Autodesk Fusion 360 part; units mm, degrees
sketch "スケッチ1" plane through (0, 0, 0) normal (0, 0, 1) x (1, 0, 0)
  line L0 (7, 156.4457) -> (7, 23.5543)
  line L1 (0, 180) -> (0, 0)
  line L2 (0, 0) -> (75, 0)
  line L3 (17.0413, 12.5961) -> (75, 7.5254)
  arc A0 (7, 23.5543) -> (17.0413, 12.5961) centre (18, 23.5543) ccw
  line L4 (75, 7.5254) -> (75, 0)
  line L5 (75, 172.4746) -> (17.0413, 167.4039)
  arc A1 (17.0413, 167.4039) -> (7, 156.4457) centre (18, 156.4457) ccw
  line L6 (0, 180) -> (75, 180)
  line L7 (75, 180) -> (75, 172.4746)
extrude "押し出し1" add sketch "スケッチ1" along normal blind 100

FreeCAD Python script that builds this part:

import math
import FreeCAD as App
import Part
import Sketcher
Q = App.Units.Quantity

doc = App.newDocument("Part")
body = doc.addObject("PartDesign::Body", "Body")

sketch1 = body.newObject("Sketcher::SketchObject", "Sketch")
sketch1.AttachmentSupport = (doc.getObject("XY_Plane"), [""])
sketch1.MapMode = "FlatFace"
sketch1.addGeometry([
    Part.LineSegment(App.Vector(7, 24, 0), App.Vector(7, 156, 0)),
    Part.ArcOfCircle(Part.Circle(App.Vector(18, 156, 0), App.Vector(0, 0, 1), 11), math.radians(95), math.radians(180)),
    Part.LineSegment(App.Vector(17, 167, 0), App.Vector(75, 172, 0)),
    Part.LineSegment(App.Vector(75, 172, 0), App.Vector(75, 180, 0)),
    Part.LineSegment(App.Vector(75, 180, 0), App.Vector(0, 180, 0)),
    Part.LineSegment(App.Vector(0, 180, 0), App.Vector(0, 0, 0)),
    Part.LineSegment(App.Vector(0, 0, 0), App.Vector(75, 0, 0)),
    Part.LineSegment(App.Vector(75, 0, 0), App.Vector(75, 8, 0)),
    Part.LineSegment(App.Vector(75, 8, 0), App.Vector(17, 13, 0)),
    Part.ArcOfCircle(Part.Circle(App.Vector(18, 24, 0), App.Vector(0, 0, 1), 11), math.radians(180), math.radians(265)),
], False)
sketch1.addConstraint([
    Sketcher.Constraint("Tangent", 0, 2, 1, 2),
    Sketcher.Constraint("Tangent", 1, 1, 2, 1),
    Sketcher.Constraint("Coincident", 2, 2, 3, 1),
    Sketcher.Constraint("Coincident", 3, 2, 4, 1),
    Sketcher.Constraint("Coincident", 4, 2, 5, 1),
    Sketcher.Constraint("Coincident", 5, 2, 6, 1),
    Sketcher.Constraint("Coincident", 6, 2, 7, 1),
    Sketcher.Constraint("Coincident", 7, 2, 8, 1),
    Sketcher.Constraint("Tangent", 8, 2, 9, 2),
    Sketcher.Constraint("Tangent", 9, 1, 0, 1),
    Sketcher.Constraint("Vertical", 0),
    Sketcher.Constraint("Vertical", 3),
    Sketcher.Constraint("Horizontal", 4),
    Sketcher.Constraint("Vertical", 5),
    Sketcher.Constraint("Horizontal", 6),
    Sketcher.Constraint("Vertical", 7),
    Sketcher.Constraint("Coincident", 5, 2, -1, 1),
    Sketcher.Constraint("Equal", 1, 9),
    Sketcher.Constraint("Vertical", 3, 2, 6, 2),
    Sketcher.Constraint("Vertical", 1, 1, 8, 2),
    Sketcher.Constraint("Equal", 3, 7),
    Sketcher.Constraint("Radius", 1, Q("11 mm")),
    Sketcher.Constraint("DistanceX", 4, 2, 4, 1, Q("75 mm")),
    Sketcher.Constraint("DistanceY", 5, 2, 5, 1, Q("180 mm")),
    Sketcher.Constraint("Angle", 2, Q("5 deg")),
    Sketcher.Constraint("DistanceX", -1, 1, 1, 3, Q("18 mm")),
    Sketcher.Constraint("DistanceY", 0, 1, 0, 2, Q("132.8914 mm")),
])
pad1 = body.newObject("PartDesign::Pad", "Pad")
pad1.Profile = sketch1
pad1.Length = 100

doc.recompute()
